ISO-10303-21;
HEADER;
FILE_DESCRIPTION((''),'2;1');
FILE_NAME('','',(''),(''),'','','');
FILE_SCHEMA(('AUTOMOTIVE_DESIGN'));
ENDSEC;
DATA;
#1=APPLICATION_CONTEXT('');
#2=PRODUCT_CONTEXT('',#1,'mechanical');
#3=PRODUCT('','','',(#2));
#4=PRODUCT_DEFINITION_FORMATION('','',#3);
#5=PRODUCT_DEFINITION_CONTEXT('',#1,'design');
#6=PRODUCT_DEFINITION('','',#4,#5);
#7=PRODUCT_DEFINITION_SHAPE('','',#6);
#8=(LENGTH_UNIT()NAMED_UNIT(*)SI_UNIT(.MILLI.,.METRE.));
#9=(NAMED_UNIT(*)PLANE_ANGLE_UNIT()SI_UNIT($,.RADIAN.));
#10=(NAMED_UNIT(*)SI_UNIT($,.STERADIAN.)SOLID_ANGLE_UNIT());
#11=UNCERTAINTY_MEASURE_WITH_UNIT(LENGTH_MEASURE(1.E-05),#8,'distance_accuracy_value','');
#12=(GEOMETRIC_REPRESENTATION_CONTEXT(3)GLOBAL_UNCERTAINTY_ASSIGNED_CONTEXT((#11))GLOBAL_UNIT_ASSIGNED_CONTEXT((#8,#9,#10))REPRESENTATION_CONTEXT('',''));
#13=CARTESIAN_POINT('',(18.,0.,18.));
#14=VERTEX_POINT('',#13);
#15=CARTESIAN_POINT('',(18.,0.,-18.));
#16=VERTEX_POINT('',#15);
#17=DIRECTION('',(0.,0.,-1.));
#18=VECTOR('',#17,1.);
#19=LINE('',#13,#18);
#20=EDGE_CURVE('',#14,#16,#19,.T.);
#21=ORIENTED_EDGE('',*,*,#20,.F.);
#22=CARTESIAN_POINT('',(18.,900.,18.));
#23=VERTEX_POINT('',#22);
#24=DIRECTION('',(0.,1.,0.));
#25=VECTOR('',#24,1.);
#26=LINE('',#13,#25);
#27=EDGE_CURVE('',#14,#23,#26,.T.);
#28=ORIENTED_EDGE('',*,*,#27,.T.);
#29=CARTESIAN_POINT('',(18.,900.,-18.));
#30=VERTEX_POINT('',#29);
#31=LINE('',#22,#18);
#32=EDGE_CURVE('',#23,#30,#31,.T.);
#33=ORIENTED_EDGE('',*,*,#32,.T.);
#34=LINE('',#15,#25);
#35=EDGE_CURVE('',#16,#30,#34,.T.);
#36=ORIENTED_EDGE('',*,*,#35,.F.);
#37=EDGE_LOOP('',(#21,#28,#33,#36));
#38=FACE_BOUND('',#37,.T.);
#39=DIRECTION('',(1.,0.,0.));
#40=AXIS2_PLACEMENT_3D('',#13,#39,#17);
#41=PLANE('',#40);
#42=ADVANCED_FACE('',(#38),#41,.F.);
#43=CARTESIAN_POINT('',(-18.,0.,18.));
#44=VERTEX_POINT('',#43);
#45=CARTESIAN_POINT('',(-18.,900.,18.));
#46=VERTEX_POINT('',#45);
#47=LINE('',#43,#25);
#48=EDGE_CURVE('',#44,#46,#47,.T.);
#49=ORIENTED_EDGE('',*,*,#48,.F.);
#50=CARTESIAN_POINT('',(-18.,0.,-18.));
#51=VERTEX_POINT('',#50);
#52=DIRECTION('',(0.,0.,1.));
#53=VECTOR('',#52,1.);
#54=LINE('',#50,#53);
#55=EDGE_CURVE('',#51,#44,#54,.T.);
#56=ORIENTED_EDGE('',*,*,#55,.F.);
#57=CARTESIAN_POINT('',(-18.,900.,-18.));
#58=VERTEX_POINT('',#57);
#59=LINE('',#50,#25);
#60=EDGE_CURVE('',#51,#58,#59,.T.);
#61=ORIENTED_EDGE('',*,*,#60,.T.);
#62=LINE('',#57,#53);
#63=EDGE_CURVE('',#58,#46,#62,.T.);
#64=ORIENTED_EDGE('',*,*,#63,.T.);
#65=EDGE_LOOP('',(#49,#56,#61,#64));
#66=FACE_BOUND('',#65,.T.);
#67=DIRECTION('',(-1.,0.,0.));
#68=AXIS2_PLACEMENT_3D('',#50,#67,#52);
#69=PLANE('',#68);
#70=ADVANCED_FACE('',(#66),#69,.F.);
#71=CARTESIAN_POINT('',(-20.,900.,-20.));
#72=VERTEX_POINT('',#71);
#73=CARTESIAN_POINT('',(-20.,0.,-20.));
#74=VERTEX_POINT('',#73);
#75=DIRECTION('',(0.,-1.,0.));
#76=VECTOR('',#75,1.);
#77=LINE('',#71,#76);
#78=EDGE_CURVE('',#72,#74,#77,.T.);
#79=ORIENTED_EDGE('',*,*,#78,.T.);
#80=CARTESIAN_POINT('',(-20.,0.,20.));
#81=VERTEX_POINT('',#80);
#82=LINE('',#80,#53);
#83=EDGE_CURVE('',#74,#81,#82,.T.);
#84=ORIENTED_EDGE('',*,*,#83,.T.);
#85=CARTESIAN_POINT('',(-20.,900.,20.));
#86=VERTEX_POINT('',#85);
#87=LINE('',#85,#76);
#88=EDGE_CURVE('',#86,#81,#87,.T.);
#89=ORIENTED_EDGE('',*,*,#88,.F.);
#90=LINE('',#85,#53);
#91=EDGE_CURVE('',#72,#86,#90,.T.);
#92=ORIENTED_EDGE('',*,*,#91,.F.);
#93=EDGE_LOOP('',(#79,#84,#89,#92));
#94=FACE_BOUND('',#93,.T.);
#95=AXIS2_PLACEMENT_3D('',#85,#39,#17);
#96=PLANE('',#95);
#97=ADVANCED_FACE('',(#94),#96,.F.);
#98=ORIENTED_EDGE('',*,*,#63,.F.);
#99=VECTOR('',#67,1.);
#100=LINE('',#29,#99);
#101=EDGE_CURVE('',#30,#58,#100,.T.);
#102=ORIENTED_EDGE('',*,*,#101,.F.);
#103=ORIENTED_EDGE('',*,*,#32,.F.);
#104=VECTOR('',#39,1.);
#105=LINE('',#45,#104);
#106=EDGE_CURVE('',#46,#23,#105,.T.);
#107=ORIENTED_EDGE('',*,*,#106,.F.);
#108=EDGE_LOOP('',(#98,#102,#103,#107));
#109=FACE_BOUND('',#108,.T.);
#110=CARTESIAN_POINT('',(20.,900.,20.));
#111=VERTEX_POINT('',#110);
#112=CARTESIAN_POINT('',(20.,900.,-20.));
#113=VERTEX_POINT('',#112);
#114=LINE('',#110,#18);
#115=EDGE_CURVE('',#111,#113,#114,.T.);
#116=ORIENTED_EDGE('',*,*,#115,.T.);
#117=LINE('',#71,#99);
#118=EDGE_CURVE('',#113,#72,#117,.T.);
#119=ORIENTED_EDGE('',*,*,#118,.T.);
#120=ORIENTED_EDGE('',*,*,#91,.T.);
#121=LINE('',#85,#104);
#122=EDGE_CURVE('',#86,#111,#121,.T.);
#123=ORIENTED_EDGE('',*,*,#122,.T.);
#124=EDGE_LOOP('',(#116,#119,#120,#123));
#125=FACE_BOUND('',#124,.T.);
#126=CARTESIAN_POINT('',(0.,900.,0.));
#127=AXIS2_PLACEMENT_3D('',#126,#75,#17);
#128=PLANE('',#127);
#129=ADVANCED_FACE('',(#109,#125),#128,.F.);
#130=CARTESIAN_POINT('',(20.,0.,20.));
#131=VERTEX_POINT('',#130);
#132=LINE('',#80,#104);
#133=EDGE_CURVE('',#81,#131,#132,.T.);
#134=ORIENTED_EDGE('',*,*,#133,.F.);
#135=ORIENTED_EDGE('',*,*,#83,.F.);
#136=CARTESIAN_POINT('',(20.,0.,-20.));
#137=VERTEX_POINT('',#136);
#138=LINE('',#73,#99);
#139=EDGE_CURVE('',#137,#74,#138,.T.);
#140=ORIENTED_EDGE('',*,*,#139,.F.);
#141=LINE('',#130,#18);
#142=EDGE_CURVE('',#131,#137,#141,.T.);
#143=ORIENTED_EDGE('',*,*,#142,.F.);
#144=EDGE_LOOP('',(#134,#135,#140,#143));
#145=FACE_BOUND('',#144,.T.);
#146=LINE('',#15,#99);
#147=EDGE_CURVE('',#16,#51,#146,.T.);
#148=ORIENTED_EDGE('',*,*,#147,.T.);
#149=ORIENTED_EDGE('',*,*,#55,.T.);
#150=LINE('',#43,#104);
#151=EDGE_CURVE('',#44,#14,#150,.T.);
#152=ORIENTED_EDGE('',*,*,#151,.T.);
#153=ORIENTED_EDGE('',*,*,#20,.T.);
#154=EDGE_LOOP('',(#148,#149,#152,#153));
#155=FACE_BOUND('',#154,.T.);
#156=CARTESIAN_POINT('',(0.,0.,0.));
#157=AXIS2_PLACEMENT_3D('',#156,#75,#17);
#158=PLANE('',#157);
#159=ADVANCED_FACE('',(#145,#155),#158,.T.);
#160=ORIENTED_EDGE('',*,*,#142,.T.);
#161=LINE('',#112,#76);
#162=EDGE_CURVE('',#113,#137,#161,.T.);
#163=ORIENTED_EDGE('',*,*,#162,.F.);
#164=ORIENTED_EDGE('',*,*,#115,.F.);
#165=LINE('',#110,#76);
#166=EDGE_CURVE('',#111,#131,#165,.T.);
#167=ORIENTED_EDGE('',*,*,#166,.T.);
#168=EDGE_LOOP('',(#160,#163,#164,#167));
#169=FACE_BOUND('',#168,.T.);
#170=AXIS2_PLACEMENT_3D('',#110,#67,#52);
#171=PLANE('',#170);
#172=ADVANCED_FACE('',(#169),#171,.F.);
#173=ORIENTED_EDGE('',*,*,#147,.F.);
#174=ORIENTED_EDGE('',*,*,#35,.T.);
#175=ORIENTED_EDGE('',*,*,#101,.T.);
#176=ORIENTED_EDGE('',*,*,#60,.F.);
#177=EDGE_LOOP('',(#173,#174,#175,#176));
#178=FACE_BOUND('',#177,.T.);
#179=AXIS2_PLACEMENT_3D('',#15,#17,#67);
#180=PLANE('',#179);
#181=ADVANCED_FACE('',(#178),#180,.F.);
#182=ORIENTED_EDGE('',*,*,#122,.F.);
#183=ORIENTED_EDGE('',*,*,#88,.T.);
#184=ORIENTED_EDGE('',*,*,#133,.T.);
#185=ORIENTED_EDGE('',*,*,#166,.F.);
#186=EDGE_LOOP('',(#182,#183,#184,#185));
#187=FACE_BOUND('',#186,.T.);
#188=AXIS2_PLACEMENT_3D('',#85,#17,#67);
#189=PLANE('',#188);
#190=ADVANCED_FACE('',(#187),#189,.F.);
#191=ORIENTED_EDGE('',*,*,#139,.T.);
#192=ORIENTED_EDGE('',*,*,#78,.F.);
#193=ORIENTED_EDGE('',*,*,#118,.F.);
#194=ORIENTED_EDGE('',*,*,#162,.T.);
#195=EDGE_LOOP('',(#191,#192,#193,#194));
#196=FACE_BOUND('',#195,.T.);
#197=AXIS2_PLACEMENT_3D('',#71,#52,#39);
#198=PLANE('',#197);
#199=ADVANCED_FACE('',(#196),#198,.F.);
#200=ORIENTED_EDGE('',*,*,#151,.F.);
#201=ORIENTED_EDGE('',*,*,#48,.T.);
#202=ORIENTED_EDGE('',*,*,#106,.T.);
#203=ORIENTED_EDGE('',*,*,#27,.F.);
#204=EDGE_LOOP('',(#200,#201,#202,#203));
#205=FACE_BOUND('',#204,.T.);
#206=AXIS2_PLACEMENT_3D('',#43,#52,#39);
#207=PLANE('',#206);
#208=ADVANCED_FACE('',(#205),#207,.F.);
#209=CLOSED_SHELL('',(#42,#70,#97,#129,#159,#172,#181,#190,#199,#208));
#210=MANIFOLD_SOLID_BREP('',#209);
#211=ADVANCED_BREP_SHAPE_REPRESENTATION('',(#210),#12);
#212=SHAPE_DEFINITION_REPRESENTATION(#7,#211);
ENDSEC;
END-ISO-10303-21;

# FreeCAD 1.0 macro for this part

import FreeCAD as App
import Part
import Sketcher
from FreeCAD import Vector
Q = App.Units.Quantity

doc = App.newDocument("Part")
body = doc.addObject("PartDesign::Body", "Body")

# Sketch on XZ plane
sketch1 = body.newObject("Sketcher::SketchObject", "Sketch")
sketch1.AttachmentSupport = (doc.getObject("XZ_Plane"), [""])
sketch1.MapMode = "FlatFace"
sketch1.addGeometry(Part.LineSegment(Vector(-20, -20, 0), Vector(-20, 20, 0)), False)
sketch1.addGeometry(Part.LineSegment(Vector(-20, 20, 0), Vector(20, 20, 0)), False)
sketch1.addGeometry(Part.LineSegment(Vector(20, 20, 0), Vector(20, -20, 0)), False)
sketch1.addGeometry(Part.LineSegment(Vector(20, -20, 0), Vector(-20, -20, 0)), False)
sketch1.addConstraint(Sketcher.Constraint("Coincident", 0, 2, 1, 1))
sketch1.addConstraint(Sketcher.Constraint("Coincident", 1, 2, 2, 1))
sketch1.addConstraint(Sketcher.Constraint("Coincident", 2, 2, 3, 1))
sketch1.addConstraint(Sketcher.Constraint("Coincident", 3, 2, 0, 1))
sketch1.addConstraint(Sketcher.Constraint("Vertical", 0))
sketch1.addConstraint(Sketcher.Constraint("Horizontal", 1))
sketch1.addConstraint(Sketcher.Constraint("Vertical", 2))
sketch1.addConstraint(Sketcher.Constraint("Horizontal", 3))
sketch1.addConstraint(Sketcher.Constraint("Symmetric", 0, 2, 2, 2, -1, 1))
sketch1.addConstraint(Sketcher.Constraint("Equal", 3, 0))
sketch1.addConstraint(Sketcher.Constraint("DistanceX", 1, 1, 1, 2, Q("40 mm")))
pad1 = body.newObject("PartDesign::Pad", "Pad")
pad1.Profile = sketch1
pad1.Length = 900
pad1.Reversed = True

# Sketch on XZ plane
sketch2 = body.newObject("Sketcher::SketchObject", "Sketch001")
sketch2.AttachmentSupport = (doc.getObject("XZ_Plane"), [""])
sketch2.MapMode = "FlatFace"
sketch2.AttachmentOffset = App.Placement(Vector(0, 0, -900), App.Rotation())
sketch2.addGeometry(Part.LineSegment(Vector(-18, -18, 0), Vector(-18, 18, 0)), False)
sketch2.addGeometry(Part.LineSegment(Vector(-18, 18, 0), Vector(18, 18, 0)), False)
sketch2.addGeometry(Part.LineSegment(Vector(18, 18, 0), Vector(18, -18, 0)), False)
sketch2.addGeometry(Part.LineSegment(Vector(18, -18, 0), Vector(-18, -18, 0)), False)
sketch2.addConstraint(Sketcher.Constraint("Coincident", 0, 2, 1, 1))
sketch2.addConstraint(Sketcher.Constraint("Coincident", 1, 2, 2, 1))
sketch2.addConstraint(Sketcher.Constraint("Coincident", 2, 2, 3, 1))
sketch2.addConstraint(Sketcher.Constraint("Coincident", 3, 2, 0, 1))
sketch2.addConstraint(Sketcher.Constraint("Vertical", 0))
sketch2.addConstraint(Sketcher.Constraint("Horizontal", 1))
sketch2.addConstraint(Sketcher.Constraint("Vertical", 2))
sketch2.addConstraint(Sketcher.Constraint("Horizontal", 3))
sketch2.addConstraint(Sketcher.Constraint("Symmetric", 0, 2, 2, 2, -1, 1))
sketch2.addConstraint(Sketcher.Constraint("Equal", 3, 0))
sketch2.addConstraint(Sketcher.Constraint("DistanceX", 1, 1, 1, 2, Q("36 mm")))
pocket1 = body.newObject("PartDesign::Pocket", "Pocket")
pocket1.Profile = sketch2
pocket1.Type = "ThroughAll"
pocket1.Reversed = True

doc.recompute()
